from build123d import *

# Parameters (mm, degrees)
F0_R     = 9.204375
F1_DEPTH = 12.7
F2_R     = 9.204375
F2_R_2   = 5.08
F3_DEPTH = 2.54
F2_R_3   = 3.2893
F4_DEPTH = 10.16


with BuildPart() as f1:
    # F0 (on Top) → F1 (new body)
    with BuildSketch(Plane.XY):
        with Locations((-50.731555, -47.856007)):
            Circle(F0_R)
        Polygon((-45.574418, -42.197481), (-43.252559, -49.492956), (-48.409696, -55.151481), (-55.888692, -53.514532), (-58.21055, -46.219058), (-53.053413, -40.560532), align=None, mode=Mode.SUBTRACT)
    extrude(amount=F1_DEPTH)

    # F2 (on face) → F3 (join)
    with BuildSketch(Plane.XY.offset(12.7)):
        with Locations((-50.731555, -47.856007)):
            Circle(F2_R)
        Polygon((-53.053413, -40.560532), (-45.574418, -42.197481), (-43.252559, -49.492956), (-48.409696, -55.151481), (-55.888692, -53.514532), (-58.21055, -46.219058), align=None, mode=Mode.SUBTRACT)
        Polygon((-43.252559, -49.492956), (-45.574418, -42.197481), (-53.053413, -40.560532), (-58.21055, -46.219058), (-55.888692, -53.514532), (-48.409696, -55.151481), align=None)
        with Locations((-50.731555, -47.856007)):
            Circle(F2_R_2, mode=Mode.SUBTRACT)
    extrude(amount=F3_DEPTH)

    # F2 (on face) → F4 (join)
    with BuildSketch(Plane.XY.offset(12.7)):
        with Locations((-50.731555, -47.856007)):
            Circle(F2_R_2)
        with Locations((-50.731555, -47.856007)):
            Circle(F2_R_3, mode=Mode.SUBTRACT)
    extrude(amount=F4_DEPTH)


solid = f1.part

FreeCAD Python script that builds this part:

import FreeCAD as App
import Part
import Sketcher

V = App.Vector
Q = App.Units.Quantity

doc = App.newDocument("Part")
body = doc.addObject("PartDesign::Body", "Body")

# Sketch on XY plane
sketch1 = doc.addObject("Sketcher::SketchObject", "Sketch")
body.addObject(sketch1)
sketch1.AttachmentSupport = (doc.XY_Plane, [""])
sketch1.MapMode = "FlatFace"
sketch1.addGeometry([
    Part.Circle(V(-50.731555, -47.856007, 0), V(0, 0, 1), 9.204375),  # 0
    Part.LineSegment(V(-53.053413, -40.560532, 0), V(-45.574418, -42.197481, 0)),  # 1
    Part.LineSegment(V(-45.574418, -42.197481, 0), V(-43.252559, -49.492956, 0)),  # 2
    Part.LineSegment(V(-43.252559, -49.492956, 0), V(-48.409696, -55.151481, 0)),  # 3
    Part.LineSegment(V(-48.409696, -55.151481, 0), V(-55.888692, -53.514532, 0)),  # 4
    Part.LineSegment(V(-55.888692, -53.514532, 0), V(-58.21055, -46.219058, 0)),  # 5
    Part.LineSegment(V(-58.21055, -46.219058, 0), V(-53.053413, -40.560532, 0)),  # 6
], False)
sketch1.addConstraint([
    Sketcher.Constraint("Coincident", 1, 2, 2, 1),
    Sketcher.Constraint("Coincident", 2, 2, 3, 1),
    Sketcher.Constraint("Coincident", 3, 2, 4, 1),
    Sketcher.Constraint("Coincident", 4, 2, 5, 1),
    Sketcher.Constraint("Coincident", 5, 2, 6, 1),
    Sketcher.Constraint("Coincident", 6, 2, 1, 1),
    Sketcher.Constraint("Parallel", 1, 4),
    Sketcher.Constraint("Parallel", 2, 5),
    Sketcher.Constraint("Parallel", 3, 6),
    Sketcher.Constraint("Equal", 1, 2),
    Sketcher.Constraint("Equal", 2, 3),
    Sketcher.Constraint("Equal", 3, 4),
    Sketcher.Constraint("DistanceY", 3, 2, 1, 2, Q("0.51 in")),
    Sketcher.Constraint("Diameter", 0, Q("18.40875 mm")),
    Sketcher.Constraint("DistanceY", 2, 2, 5, 2, Q("3.273898 mm")),
    Sketcher.Constraint("Distance", 1, Q("7.656041 mm")),
    Sketcher.Constraint("DistanceY", 1, 2, -1, 1, Q("42.197481 mm")),
    Sketcher.Constraint("DistanceX", 2, 2, -1, 1, Q("43.252559 mm")),
    Sketcher.Constraint("DistanceX", 5, 2, -1, 1, Q("58.21055 mm")),
    Sketcher.Constraint("DistanceY", 2, 2, 0, 3, Q("1.636949 mm")),
    Sketcher.Constraint("DistanceX", 0, 3, 3, 2, Q("2.321859 mm")),
])
pad1 = doc.addObject("PartDesign::Pad", "Pad")
body.addObject(pad1)
pad1.Profile = sketch1
pad1.Length = Q("0.5 in")

# Sketch on XY plane
sketch2 = doc.addObject("Sketcher::SketchObject", "Sketch001")
body.addObject(sketch2)
sketch2.AttachmentSupport = (doc.XY_Plane, [""])
sketch2.MapMode = "FlatFace"
sketch2.AttachmentOffset = App.Placement(V(0, 0, 0.5 * 25.4), App.Rotation())
sketch2.addGeometry([
    Part.Circle(V(-50.731555, -47.856007, 0), V(0, 0, 1), 9.204375),
    Part.Circle(V(-50.731555, -47.856007, 0), V(0, 0, 1), 5.08),
], False)
sketch2.addConstraint([
    Sketcher.Constraint("Coincident", 1, 3, 0, 3),
    Sketcher.Constraint("Diameter", 1, Q("0.4 in")),
    Sketcher.Constraint("Diameter", 0, Q("18.40875 mm")),
    Sketcher.Constraint("DistanceX", 0, 3, -1, 1, Q("50.731555 mm")),
    Sketcher.Constraint("DistanceY", 0, 3, -1, 1, Q("47.856007 mm")),
])
pad2 = doc.addObject("PartDesign::Pad", "Pad001")
body.addObject(pad2)
pad2.Profile = sketch2
pad2.Length = Q("0.1 in")

# Sketch on XY plane
sketch3 = doc.addObject("Sketcher::SketchObject", "Sketch002")
body.addObject(sketch3)
sketch3.AttachmentSupport = (doc.XY_Plane, [""])
sketch3.MapMode = "FlatFace"
sketch3.AttachmentOffset = App.Placement(V(0, 0, 0.5 * 25.4), App.Rotation())
sketch3.addGeometry([
    Part.Circle(V(-50.731555, -47.856007, 0), V(0, 0, 1), 5.08),
    Part.Circle(V(-50.731555, -47.856007, 0), V(0, 0, 1), 3.2893),
], False)
sketch3.addConstraint([
    Sketcher.Constraint("Coincident", 1, 3, 0, 3),
    Sketcher.Constraint("Diameter", 0, Q("0.4 in")),
    Sketcher.Constraint("Diameter", 1, Q("0.259 in")),
    Sketcher.Constraint("DistanceX", 0, 3, -1, 1, Q("50.731555 mm")),
    Sketcher.Constraint("DistanceY", 0, 3, -1, 1, Q("47.856007 mm")),
])
pad3 = doc.addObject("PartDesign::Pad", "Pad002")
body.addObject(pad3)
pad3.Profile = sketch3
pad3.Length = Q("0.4 in")

doc.recompute()
